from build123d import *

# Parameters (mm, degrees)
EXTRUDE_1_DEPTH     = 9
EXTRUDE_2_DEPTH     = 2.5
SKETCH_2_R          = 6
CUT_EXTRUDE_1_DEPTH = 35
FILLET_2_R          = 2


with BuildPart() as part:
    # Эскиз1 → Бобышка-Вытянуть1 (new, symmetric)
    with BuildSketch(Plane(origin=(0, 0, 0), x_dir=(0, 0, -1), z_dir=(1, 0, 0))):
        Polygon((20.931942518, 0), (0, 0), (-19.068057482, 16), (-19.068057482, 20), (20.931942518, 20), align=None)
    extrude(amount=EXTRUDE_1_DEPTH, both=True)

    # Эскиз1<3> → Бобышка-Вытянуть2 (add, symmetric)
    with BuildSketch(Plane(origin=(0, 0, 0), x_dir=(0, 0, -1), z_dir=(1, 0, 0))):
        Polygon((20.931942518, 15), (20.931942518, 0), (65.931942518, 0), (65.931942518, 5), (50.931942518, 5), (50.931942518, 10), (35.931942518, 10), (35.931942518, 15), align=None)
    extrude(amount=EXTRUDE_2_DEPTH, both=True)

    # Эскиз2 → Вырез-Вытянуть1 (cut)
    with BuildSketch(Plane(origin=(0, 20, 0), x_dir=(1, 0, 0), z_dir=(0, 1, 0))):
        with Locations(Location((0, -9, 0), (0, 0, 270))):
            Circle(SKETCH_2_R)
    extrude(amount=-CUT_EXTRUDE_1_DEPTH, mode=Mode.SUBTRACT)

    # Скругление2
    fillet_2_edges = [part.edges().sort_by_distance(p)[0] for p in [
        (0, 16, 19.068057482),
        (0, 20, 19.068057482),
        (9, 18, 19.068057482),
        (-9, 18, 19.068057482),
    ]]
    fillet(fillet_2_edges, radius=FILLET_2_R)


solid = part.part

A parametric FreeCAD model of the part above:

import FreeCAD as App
import Part
import Sketcher
from FreeCAD import Vector
Q = App.Units.Quantity


def edges_at(feature, points):
    """Names of the edges that pass closest to the given points."""
    edges = feature.Shape.Edges
    near = lambda p: min(range(len(edges)), key=lambda i: edges[i].distToShape(Part.Vertex(*p))[0])
    return sorted({f"Edge{near(p) + 1}" for p in points})

doc = App.newDocument("Part")
body = doc.addObject("PartDesign::Body", "Body")

sketch1 = body.newObject("Sketcher::SketchObject", "Sketch")
sketch1.AttachmentSupport = (doc.getObject("YZ_Plane"), [""])
sketch1.MapMode = "FlatFace"
sketch1.addGeometry([
    Part.LineSegment(Vector(0, 0, 0), Vector(0, -20.931943, 0)),
    Part.LineSegment(Vector(0, -20.931943, 0), Vector(20, -20.931943, 0)),
    Part.LineSegment(Vector(20, -20.931943, 0), Vector(20, 19.068057, 0)),
    Part.LineSegment(Vector(20, 19.068057, 0), Vector(16, 19.068057, 0)),
    Part.LineSegment(Vector(16, 19.068057, 0), Vector(0, 0, 0)),
], False)
sketch1.addConstraint([
    Sketcher.Constraint("Coincident", 0, 2, 1, 1),
    Sketcher.Constraint("Coincident", 1, 2, 2, 1),
    Sketcher.Constraint("Coincident", 2, 2, 3, 1),
    Sketcher.Constraint("Coincident", 3, 2, 4, 1),
    Sketcher.Constraint("Coincident", 4, 2, 0, 1),
    Sketcher.Constraint("Vertical", 0),
    Sketcher.Constraint("Horizontal", 1),
    Sketcher.Constraint("Vertical", 2),
    Sketcher.Constraint("Horizontal", 3),
    Sketcher.Constraint("Coincident", 4, 2, -1, 1),
    Sketcher.Constraint("DistanceX", 1, 1, 1, 2, 20.0),
    Sketcher.Constraint("DistanceX", 3, 2, 3, 1, 4.0),
    Sketcher.Constraint("DistanceY", 2, 1, 2, 2, 40.0),
    Sketcher.Constraint("Angle", 4, Q("-130 deg")),
])
pad1 = body.newObject("PartDesign::Pad", "Pad")
pad1.Profile = sketch1
pad1.Length = 18
pad1.Midplane = True

sketch2 = body.newObject("Sketcher::SketchObject", "Sketch001")
sketch2.AttachmentSupport = (doc.getObject("YZ_Plane"), [""])
sketch2.MapMode = "FlatFace"
sketch2.addGeometry([
    Part.LineSegment(Vector(15, -20.931943, 0), Vector(0, -20.931943, 0)),
    Part.LineSegment(Vector(0, -20.931943, 0), Vector(0, -65.931943, 0)),
    Part.LineSegment(Vector(0, -65.931943, 0), Vector(5, -65.931943, 0)),
    Part.LineSegment(Vector(5, -65.931943, 0), Vector(5, -50.931943, 0)),
    Part.LineSegment(Vector(5, -50.931943, 0), Vector(10, -50.931943, 0)),
    Part.LineSegment(Vector(10, -50.931943, 0), Vector(10, -35.931943, 0)),
    Part.LineSegment(Vector(10, -35.931943, 0), Vector(15, -35.931943, 0)),
    Part.LineSegment(Vector(15, -35.931943, 0), Vector(15, -20.931943, 0)),
], False)
sketch2.addConstraint([
    Sketcher.Constraint("Coincident", 0, 2, 1, 1),
    Sketcher.Constraint("Coincident", 1, 2, 2, 1),
    Sketcher.Constraint("Coincident", 2, 2, 3, 1),
    Sketcher.Constraint("Coincident", 3, 2, 4, 1),
    Sketcher.Constraint("Coincident", 4, 2, 5, 1),
    Sketcher.Constraint("Coincident", 5, 2, 6, 1),
    Sketcher.Constraint("Coincident", 6, 2, 7, 1),
    Sketcher.Constraint("Coincident", 7, 2, 0, 1),
    Sketcher.Constraint("Horizontal", 0),
    Sketcher.Constraint("Vertical", 1),
    Sketcher.Constraint("Horizontal", 2),
    Sketcher.Constraint("Vertical", 3),
    Sketcher.Constraint("Horizontal", 4),
    Sketcher.Constraint("Vertical", 5),
    Sketcher.Constraint("Horizontal", 6),
    Sketcher.Constraint("Vertical", 7),
    Sketcher.Constraint("PointOnObject", 0, 2, -2),
    Sketcher.Constraint("Equal", 2, 4),
    Sketcher.Constraint("Equal", 4, 6),
    Sketcher.Constraint("Equal", 0, 3),
    Sketcher.Constraint("Equal", 3, 5),
    Sketcher.Constraint("Equal", 5, 7),
    Sketcher.Constraint("DistanceX", 0, 2, 0, 1, 15.0),
    Sketcher.Constraint("DistanceY", 0, 2, -1, 1, 20.931943),
])
pad2 = body.newObject("PartDesign::Pad", "Pad001")
pad2.Profile = sketch2
pad2.Length = 5
pad2.Midplane = True

sketch3 = body.newObject("Sketcher::SketchObject", "Sketch002")
sketch3.AttachmentSupport = (doc.getObject("XZ_Plane"), [""])
sketch3.MapMode = "FlatFace"
sketch3.AttachmentOffset = App.Placement(Vector(0, 0, -20), App.Rotation())
sketch3.addGeometry(Part.Circle(Vector(0, 9, 0), Vector(0, 0, 1), 6), False)
sketch3.addConstraint([
    Sketcher.Constraint("PointOnObject", 0, 3, -2),
    Sketcher.Constraint("Diameter", 0, 12.0),
    Sketcher.Constraint("DistanceY", -1, 1, 0, 3, 9.0),
])
pocket1 = body.newObject("PartDesign::Pocket", "Pocket")
pocket1.Profile = sketch3
pocket1.Length = 35
pocket1.Reversed = True
doc.recompute()

fillet = body.newObject("PartDesign::Fillet", "Fillet")
fillet.Base = (pocket1, edges_at(pocket1, [
    (0, 16, 19.068),
    (0, 20, 19.068),
    (9, 18, 19.068),
    (-9, 18, 19.068),
]))
fillet.Radius = 2

doc.recompute()
